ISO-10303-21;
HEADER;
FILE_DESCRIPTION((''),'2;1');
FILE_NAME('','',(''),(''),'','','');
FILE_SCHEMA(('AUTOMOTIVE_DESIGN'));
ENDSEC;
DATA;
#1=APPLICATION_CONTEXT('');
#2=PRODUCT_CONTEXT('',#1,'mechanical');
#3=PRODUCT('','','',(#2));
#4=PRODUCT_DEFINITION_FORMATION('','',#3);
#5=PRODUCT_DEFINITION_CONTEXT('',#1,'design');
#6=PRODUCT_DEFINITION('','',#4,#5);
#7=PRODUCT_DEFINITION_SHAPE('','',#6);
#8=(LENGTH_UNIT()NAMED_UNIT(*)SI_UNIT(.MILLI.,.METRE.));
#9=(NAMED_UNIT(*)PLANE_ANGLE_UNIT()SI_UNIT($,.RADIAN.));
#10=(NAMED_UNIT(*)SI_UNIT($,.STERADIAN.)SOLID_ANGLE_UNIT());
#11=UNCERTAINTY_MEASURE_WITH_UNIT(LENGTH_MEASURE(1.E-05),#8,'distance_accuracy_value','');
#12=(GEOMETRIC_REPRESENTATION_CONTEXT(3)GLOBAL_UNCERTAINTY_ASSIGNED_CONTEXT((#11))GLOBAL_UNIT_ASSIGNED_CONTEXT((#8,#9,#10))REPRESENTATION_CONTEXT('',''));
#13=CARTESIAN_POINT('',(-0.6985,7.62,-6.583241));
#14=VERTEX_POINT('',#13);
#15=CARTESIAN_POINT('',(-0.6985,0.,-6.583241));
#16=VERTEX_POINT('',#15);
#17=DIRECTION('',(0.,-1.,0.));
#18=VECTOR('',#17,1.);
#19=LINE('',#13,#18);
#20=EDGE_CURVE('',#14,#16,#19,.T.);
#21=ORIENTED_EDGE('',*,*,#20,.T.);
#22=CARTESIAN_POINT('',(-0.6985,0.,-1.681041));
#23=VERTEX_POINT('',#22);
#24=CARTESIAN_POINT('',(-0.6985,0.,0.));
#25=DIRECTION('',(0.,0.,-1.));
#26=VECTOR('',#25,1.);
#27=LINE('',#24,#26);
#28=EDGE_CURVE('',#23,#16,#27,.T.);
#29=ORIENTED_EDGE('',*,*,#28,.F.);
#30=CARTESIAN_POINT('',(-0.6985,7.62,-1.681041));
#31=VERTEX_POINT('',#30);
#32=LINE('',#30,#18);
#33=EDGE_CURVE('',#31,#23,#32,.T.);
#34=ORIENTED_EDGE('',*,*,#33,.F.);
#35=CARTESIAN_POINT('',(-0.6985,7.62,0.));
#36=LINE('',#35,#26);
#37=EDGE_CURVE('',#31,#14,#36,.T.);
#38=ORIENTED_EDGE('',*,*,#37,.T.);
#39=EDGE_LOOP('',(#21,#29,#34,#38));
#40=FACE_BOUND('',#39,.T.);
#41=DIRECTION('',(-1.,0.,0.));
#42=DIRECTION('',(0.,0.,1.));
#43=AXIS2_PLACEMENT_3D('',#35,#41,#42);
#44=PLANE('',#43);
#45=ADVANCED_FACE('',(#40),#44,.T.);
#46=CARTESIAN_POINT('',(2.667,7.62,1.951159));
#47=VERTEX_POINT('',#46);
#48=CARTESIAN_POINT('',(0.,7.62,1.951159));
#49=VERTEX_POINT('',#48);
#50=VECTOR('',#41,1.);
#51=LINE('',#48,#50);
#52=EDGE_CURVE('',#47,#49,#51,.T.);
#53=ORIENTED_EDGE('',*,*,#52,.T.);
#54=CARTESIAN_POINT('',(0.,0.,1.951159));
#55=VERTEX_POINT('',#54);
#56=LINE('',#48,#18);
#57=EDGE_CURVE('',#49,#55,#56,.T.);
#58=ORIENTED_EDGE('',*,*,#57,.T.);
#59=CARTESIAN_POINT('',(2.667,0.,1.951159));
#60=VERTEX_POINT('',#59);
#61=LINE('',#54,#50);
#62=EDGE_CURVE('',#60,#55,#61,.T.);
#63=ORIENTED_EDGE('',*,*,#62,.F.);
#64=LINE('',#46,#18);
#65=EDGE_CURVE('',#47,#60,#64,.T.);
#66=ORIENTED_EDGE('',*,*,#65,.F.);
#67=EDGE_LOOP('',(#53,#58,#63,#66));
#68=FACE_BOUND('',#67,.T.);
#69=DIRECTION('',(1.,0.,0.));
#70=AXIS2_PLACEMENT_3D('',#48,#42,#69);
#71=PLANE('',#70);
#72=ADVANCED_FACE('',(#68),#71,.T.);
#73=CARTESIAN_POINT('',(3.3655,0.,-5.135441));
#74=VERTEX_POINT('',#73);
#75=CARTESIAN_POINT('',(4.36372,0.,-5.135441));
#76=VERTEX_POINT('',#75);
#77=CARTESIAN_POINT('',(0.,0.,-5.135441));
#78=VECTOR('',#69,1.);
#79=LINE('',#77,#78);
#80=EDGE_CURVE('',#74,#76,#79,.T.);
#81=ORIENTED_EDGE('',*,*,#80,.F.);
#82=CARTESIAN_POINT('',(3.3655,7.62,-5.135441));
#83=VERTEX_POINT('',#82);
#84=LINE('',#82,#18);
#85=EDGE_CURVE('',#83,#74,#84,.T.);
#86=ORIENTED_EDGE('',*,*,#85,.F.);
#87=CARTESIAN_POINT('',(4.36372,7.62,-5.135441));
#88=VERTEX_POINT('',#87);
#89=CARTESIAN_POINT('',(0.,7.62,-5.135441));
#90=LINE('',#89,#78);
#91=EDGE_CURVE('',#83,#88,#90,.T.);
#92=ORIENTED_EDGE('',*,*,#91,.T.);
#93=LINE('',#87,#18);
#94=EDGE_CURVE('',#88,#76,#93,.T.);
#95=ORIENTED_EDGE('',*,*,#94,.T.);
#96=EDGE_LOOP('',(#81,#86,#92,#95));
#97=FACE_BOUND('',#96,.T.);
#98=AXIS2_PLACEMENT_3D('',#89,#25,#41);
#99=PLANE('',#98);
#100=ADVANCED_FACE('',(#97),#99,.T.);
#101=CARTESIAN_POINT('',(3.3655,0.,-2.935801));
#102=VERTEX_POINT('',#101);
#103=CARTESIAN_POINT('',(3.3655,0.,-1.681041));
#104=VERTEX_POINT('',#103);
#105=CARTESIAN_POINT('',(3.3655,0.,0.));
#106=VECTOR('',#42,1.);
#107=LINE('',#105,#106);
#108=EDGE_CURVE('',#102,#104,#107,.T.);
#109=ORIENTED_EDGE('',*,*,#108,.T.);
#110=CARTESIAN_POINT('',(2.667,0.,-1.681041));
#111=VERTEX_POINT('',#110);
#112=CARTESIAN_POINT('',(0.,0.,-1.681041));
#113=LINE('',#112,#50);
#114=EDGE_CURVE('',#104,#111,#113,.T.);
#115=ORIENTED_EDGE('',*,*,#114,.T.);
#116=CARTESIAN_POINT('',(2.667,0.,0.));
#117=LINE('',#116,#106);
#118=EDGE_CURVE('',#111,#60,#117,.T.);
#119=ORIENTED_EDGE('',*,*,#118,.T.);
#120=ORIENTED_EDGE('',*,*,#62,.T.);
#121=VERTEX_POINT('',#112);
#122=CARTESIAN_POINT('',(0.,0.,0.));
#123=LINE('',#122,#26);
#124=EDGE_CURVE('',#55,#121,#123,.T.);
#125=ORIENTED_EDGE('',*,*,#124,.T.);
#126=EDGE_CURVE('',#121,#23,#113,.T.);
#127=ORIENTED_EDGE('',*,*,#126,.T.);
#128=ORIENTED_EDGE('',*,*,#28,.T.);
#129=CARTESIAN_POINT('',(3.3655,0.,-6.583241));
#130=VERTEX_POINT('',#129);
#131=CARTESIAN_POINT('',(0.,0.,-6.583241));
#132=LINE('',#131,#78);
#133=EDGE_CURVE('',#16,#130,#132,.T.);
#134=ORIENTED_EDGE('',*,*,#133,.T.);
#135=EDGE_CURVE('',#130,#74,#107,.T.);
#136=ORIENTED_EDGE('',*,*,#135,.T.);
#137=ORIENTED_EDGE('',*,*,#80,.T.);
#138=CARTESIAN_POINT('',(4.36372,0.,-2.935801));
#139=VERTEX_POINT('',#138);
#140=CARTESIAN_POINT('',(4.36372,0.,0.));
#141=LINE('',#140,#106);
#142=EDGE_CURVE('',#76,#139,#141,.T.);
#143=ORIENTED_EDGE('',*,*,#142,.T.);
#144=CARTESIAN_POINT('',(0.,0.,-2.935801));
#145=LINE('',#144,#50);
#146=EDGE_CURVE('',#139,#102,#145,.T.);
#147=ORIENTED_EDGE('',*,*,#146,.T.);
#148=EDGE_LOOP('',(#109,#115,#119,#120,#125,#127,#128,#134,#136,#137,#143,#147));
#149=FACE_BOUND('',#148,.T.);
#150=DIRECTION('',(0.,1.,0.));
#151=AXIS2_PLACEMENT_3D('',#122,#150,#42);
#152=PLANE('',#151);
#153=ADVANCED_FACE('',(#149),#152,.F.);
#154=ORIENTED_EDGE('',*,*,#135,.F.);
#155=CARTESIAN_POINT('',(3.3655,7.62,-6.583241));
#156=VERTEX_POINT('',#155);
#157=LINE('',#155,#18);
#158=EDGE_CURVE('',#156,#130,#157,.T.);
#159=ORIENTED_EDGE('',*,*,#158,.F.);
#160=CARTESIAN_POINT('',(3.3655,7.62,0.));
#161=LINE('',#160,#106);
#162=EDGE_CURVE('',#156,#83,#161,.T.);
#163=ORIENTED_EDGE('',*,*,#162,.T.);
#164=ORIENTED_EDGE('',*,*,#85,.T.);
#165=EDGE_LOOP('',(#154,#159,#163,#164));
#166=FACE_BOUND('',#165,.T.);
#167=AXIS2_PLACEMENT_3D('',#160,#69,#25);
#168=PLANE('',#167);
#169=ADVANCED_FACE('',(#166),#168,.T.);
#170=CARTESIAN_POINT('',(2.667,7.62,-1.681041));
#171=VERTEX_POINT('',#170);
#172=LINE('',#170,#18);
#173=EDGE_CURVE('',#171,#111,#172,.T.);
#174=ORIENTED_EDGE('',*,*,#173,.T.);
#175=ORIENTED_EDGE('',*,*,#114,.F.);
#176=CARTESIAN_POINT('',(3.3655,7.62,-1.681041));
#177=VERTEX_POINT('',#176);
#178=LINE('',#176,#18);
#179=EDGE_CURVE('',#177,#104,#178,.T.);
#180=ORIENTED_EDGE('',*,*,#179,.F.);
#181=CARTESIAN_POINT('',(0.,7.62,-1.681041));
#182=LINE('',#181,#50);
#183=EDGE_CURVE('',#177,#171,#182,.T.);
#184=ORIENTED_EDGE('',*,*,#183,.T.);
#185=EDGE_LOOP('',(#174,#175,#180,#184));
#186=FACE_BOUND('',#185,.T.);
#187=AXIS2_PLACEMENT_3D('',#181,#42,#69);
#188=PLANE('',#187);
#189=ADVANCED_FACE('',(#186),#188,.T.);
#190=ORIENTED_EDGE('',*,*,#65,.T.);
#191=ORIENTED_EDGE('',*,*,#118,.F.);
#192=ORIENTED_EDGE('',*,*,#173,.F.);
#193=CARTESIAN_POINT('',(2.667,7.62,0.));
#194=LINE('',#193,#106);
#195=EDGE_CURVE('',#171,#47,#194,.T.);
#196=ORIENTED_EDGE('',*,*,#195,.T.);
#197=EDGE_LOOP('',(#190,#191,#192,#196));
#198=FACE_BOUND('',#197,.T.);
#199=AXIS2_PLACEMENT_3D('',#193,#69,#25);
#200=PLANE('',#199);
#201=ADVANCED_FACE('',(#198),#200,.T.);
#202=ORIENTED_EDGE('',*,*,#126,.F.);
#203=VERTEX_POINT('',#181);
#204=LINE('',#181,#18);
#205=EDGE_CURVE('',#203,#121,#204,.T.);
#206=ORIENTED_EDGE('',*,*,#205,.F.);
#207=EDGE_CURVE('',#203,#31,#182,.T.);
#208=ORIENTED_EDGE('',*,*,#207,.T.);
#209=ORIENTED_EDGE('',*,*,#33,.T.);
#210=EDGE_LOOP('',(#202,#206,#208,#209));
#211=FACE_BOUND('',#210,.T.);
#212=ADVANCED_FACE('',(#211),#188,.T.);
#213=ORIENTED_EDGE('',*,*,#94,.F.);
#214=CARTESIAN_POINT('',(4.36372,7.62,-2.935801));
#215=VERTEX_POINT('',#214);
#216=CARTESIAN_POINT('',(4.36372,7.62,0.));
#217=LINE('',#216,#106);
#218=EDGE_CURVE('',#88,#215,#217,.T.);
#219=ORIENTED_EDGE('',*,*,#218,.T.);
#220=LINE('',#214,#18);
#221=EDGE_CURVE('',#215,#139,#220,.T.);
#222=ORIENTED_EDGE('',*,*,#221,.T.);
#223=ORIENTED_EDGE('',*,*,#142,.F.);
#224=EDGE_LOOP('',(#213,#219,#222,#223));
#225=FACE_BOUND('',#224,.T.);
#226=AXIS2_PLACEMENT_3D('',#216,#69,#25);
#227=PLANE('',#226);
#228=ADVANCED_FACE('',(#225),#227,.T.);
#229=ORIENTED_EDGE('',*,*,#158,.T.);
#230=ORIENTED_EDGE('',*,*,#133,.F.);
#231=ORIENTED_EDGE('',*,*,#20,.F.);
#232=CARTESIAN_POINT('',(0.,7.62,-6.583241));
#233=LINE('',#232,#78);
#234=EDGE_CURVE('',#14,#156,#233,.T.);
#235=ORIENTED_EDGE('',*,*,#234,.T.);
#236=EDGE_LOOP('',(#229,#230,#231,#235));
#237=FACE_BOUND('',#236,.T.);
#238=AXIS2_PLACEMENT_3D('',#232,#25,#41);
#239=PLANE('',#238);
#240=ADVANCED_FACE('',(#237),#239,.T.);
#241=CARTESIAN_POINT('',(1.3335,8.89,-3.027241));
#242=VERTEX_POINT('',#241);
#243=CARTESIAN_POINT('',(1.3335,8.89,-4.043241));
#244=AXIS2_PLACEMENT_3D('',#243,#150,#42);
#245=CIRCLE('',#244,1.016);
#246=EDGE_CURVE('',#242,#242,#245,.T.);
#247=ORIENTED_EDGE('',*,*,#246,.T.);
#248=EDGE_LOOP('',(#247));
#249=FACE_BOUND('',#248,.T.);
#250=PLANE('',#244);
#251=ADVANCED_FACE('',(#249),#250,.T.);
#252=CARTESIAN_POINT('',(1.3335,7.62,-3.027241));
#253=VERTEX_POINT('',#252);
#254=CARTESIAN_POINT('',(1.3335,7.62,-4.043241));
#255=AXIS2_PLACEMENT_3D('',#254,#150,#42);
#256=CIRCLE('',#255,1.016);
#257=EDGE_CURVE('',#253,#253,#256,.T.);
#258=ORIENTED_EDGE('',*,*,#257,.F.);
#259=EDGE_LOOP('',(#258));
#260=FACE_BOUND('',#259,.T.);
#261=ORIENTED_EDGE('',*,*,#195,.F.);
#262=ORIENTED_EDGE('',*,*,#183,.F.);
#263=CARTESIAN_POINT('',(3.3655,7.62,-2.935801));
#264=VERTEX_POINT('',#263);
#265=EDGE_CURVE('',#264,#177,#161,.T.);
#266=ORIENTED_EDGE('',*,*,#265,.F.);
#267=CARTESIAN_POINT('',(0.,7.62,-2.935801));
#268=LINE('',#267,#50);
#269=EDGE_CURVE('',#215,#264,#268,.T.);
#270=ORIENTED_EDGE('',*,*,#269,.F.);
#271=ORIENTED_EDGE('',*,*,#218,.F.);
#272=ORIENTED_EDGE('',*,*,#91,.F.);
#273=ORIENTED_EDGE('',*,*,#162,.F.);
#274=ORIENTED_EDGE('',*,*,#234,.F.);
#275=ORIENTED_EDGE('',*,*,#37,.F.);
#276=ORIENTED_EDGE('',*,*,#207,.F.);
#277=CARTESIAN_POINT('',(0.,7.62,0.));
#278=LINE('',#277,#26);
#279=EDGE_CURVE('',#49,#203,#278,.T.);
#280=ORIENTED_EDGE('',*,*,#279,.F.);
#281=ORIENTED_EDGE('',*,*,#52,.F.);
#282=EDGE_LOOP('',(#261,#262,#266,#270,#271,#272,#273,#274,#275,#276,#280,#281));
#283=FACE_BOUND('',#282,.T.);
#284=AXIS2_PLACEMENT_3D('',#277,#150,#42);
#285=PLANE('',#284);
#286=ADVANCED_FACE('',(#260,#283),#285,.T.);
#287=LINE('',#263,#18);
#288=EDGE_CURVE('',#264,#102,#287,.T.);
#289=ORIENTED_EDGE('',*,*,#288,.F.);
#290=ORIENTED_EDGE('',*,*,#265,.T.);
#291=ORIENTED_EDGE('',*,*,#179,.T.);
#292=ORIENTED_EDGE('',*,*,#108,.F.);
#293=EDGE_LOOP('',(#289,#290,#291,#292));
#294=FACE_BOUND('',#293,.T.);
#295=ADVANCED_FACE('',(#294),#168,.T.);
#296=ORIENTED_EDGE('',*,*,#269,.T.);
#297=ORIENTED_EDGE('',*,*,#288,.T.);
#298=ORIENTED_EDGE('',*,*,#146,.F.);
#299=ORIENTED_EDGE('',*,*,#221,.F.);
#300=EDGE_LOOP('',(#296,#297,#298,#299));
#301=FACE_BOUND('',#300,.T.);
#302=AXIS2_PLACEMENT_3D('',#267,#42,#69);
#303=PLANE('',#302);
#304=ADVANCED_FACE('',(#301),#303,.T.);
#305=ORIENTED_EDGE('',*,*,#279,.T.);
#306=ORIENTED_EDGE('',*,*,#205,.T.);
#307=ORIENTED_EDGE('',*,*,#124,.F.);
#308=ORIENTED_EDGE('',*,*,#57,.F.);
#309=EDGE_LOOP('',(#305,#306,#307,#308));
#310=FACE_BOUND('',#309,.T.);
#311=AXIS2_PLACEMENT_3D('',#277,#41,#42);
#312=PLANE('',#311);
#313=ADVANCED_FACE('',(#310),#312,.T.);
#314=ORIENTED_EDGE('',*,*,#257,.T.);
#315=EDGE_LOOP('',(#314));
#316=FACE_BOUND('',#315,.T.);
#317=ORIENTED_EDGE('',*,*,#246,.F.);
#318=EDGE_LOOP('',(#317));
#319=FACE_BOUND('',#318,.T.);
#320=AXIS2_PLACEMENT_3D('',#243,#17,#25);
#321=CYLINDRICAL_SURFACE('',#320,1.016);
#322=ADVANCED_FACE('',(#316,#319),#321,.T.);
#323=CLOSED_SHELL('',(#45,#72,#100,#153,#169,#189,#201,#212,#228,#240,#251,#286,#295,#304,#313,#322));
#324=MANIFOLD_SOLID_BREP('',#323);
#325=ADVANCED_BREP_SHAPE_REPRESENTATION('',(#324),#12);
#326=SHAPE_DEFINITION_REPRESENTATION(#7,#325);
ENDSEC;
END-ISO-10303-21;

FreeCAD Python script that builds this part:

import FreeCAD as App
import Part
import Sketcher
from FreeCAD import Vector
Q = App.Units.Quantity


def add_polygon(sketch, points):
    """Adds a closed chain of lines whose ends are joined by coincident constraints."""
    first, n = sketch.GeometryCount, len(points)
    for a, b in zip(points, points[1:] + points[:1]):
        sketch.addGeometry(Part.LineSegment(App.Vector(*a, 0), App.Vector(*b, 0)), False)
    for i in range(n):
        sketch.addConstraint(Sketcher.Constraint("Coincident", first + i, 2, first + (i + 1) % n, 1))

doc = App.newDocument("Part")
body = doc.addObject("PartDesign::Body", "Body")

sketch1 = body.newObject("Sketcher::SketchObject", "Sketch")
sketch1.AttachmentSupport = (doc.getObject("XZ_Plane"), [""])
sketch1.MapMode = "FlatFace"
add_polygon(sketch1, [(0, -1.7), (0, 2), (2.7, 2), (2.7, -1.7), (3.4, -1.7), (3.4, -2.9), (4.4, -2.9), (4.4, -5.1), (3.4, -5.1), (3.4, -6.6), (-0.7, -6.6), (-0.7, -1.7)])
sketch1.addConstraint(Sketcher.Constraint("Vertical", 0))
sketch1.addConstraint(Sketcher.Constraint("Horizontal", 1))
sketch1.addConstraint(Sketcher.Constraint("Vertical", 2))
sketch1.addConstraint(Sketcher.Constraint("Horizontal", 3))
sketch1.addConstraint(Sketcher.Constraint("Vertical", 4))
sketch1.addConstraint(Sketcher.Constraint("Horizontal", 5))
sketch1.addConstraint(Sketcher.Constraint("Vertical", 6))
sketch1.addConstraint(Sketcher.Constraint("Horizontal", 7))
sketch1.addConstraint(Sketcher.Constraint("Vertical", 8))
sketch1.addConstraint(Sketcher.Constraint("Horizontal", 9))
sketch1.addConstraint(Sketcher.Constraint("Vertical", 10))
sketch1.addConstraint(Sketcher.Constraint("Horizontal", 11))
sketch1.addConstraint(Sketcher.Constraint("PointOnObject", 0, 2, -2))
sketch1.addConstraint(Sketcher.Constraint("Horizontal", 3, 2, 10, 2))
sketch1.addConstraint(Sketcher.Constraint("Vertical", 4, 2, 7, 2))
sketch1.addConstraint(Sketcher.Constraint("Equal", 3, 11))
sketch1.addConstraint(Sketcher.Constraint("DistanceX", 9, 2, 9, 1, Q("0.16 in")))
sketch1.addConstraint(Sketcher.Constraint("DistanceX", 1, 1, 1, 2, Q("0.105 in")))
sketch1.addConstraint(Sketcher.Constraint("DistanceY", 0, 1, 0, 2, Q("0.143 in")))
sketch1.addConstraint(Sketcher.Constraint("DistanceY", 8, 2, 8, 1, Q("0.057 in")))
sketch1.addConstraint(Sketcher.Constraint("DistanceY", 10, 1, 10, 2, Q("0.193 in")))
sketch1.addConstraint(Sketcher.Constraint("DistanceX", 5, 1, 5, 2, Q("0.0393 in")))
sketch1.addConstraint(Sketcher.Constraint("DistanceY", 4, 2, 4, 1, Q("0.0494 in")))
sketch1.addConstraint(Sketcher.Constraint("DistanceY", 4, 2, -1, 1, 2.935801))
pad1 = body.newObject("PartDesign::Pad", "Pad")
pad1.Profile = sketch1
pad1.Length = Q("0.3 in")
pad1.Reversed = True

sketch2 = body.newObject("Sketcher::SketchObject", "Sketch001")
sketch2.AttachmentSupport = (doc.getObject("XZ_Plane"), [""])
sketch2.MapMode = "FlatFace"
sketch2.AttachmentOffset = App.Placement(Vector(0, 0, -0.3 * 25.4), App.Rotation())
sketch2.addGeometry(Part.Circle(Vector(1.3, -4, 0), Vector(0, 0, 1), 1), False)
sketch2.addConstraint(Sketcher.Constraint("Diameter", 0, Q("0.08 in")))
sketch2.addConstraint(Sketcher.Constraint("DistanceX", -1, 1, 0, 3, Q("0.0525 in")))
sketch2.addConstraint(Sketcher.Constraint("DistanceY", 0, 3, -1, 1, 4.043241))
pad2 = body.newObject("PartDesign::Pad", "Pad001")
pad2.Profile = sketch2
pad2.Length = Q("0.05 in")
pad2.Reversed = True

doc.recompute()
